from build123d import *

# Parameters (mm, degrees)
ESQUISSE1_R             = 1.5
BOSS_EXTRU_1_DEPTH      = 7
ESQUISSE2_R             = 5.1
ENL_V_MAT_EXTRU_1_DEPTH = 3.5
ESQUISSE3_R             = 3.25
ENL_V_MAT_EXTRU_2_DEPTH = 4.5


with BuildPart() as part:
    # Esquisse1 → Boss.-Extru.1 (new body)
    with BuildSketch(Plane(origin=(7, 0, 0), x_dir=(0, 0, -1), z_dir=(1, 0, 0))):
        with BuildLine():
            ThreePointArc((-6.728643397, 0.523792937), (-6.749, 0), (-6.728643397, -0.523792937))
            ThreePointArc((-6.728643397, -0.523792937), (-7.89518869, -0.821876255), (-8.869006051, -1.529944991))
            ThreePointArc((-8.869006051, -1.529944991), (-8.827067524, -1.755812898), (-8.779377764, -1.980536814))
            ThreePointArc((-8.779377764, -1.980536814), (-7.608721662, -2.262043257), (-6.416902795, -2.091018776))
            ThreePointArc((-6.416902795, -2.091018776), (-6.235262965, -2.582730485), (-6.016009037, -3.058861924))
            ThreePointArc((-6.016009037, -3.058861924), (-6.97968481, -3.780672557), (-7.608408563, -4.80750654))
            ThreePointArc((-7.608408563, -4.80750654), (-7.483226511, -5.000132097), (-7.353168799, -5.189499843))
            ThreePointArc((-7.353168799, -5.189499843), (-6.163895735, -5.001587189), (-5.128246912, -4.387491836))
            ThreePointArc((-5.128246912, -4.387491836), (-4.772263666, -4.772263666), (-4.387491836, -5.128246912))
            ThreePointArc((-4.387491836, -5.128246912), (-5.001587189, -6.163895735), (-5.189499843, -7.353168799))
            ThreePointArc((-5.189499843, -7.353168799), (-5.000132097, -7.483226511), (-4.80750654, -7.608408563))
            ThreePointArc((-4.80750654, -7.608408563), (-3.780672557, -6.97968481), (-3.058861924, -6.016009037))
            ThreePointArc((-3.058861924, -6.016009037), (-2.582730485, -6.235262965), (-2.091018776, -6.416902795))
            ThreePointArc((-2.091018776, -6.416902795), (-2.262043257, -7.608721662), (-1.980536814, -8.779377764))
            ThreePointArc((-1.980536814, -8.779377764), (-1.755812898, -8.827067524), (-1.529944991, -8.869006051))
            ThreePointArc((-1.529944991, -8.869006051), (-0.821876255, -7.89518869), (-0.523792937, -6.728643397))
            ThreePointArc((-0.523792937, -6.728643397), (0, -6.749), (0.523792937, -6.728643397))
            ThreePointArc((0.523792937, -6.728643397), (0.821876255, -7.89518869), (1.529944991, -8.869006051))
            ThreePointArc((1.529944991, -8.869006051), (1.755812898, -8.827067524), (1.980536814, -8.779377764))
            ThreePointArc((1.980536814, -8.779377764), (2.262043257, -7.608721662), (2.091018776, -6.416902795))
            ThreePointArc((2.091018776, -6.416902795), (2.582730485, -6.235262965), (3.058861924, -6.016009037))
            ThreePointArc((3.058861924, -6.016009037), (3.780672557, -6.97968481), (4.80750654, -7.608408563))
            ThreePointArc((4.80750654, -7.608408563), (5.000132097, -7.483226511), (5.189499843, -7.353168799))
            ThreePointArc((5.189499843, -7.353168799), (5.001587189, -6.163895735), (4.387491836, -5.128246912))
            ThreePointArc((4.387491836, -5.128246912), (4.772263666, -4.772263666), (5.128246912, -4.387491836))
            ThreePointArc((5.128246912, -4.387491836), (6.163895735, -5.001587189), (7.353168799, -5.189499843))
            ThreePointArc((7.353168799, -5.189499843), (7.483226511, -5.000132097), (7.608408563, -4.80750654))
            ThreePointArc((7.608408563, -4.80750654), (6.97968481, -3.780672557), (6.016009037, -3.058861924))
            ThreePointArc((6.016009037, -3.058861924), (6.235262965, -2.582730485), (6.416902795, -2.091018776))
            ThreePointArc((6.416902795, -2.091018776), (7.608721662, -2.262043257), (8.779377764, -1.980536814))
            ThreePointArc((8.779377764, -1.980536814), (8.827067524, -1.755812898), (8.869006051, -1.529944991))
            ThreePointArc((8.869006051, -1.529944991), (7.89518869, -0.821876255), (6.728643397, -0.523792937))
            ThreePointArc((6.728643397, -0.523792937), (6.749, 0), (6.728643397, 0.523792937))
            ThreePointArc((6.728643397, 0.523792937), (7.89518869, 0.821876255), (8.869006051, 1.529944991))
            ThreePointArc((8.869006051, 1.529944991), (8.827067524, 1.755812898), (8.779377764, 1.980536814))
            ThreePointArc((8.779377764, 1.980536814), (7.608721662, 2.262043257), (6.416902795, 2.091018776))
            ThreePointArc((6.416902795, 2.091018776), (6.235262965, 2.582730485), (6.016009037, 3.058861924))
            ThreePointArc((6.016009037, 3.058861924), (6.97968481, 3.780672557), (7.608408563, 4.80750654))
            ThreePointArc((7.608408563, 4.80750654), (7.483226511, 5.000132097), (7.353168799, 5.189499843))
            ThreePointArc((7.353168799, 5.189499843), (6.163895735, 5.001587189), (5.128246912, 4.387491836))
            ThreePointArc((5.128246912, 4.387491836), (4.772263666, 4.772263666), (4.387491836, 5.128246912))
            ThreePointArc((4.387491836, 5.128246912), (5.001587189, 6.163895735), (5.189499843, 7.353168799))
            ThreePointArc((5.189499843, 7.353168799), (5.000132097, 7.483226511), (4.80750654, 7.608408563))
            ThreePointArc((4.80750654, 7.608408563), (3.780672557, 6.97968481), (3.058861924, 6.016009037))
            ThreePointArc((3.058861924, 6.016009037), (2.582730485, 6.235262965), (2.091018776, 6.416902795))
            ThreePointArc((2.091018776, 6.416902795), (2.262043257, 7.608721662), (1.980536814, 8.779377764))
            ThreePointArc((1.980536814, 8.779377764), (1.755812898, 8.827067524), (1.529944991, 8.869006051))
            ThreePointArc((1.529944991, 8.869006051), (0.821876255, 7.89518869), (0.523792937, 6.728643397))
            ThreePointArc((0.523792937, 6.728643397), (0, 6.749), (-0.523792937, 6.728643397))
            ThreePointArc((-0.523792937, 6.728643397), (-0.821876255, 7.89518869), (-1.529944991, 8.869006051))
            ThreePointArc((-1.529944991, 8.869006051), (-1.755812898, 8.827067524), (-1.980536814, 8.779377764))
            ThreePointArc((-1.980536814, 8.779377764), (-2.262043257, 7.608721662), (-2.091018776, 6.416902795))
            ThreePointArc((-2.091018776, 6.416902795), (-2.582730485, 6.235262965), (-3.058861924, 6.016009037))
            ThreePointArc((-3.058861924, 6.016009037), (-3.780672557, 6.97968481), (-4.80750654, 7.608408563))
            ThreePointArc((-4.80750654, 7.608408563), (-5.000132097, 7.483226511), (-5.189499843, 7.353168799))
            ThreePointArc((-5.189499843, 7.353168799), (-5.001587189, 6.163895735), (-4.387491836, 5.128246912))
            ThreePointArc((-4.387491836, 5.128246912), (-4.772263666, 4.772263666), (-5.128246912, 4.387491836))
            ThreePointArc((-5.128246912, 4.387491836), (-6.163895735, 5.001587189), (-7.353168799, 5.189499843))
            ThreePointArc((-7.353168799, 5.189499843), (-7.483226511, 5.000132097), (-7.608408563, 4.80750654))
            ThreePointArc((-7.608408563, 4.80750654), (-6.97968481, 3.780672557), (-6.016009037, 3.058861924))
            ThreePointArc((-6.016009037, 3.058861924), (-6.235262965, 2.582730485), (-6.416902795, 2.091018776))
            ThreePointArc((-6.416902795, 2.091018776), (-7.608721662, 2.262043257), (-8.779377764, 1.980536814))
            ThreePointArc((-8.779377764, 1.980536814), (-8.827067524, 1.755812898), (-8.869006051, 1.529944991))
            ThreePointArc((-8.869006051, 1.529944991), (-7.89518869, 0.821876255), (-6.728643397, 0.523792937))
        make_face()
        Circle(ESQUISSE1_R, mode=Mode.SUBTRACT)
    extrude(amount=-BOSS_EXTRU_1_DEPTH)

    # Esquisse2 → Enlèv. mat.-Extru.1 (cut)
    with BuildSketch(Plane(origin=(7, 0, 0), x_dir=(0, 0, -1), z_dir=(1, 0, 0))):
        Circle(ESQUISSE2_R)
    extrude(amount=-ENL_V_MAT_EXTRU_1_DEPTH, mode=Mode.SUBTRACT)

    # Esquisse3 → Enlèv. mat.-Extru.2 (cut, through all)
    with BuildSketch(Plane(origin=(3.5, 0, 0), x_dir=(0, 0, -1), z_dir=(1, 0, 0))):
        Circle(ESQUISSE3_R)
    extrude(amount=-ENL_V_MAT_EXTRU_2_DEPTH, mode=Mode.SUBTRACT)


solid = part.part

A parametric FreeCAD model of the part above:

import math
import FreeCAD as App
import Part
import Sketcher
from FreeCAD import Vector
Q = App.Units.Quantity

doc = App.newDocument("Part")
body = doc.addObject("PartDesign::Body", "Body")

# Sketch on YZ plane
sketch1 = body.newObject("Sketcher::SketchObject", "Sketch")
sketch1.AttachmentSupport = (doc.getObject("YZ_Plane"), [""])
sketch1.MapMode = "FlatFace"
sketch1.AttachmentOffset = App.Placement(Vector(0, 0, 7), App.Rotation())
sketch1.addGeometry([
    Part.ArcOfCircle(Part.Circle(Vector(0, 0, 0), Vector(0, 0, 1), 6.75), math.radians(85.55), math.radians(94.45)),  # 0
    Part.ArcOfCircle(Part.Circle(Vector(-3.72, 6.53, 0), Vector(0, 0, 1), 3.2), math.radians(3), math.radians(47)),  # 1
    Part.ArcOfCircle(Part.Circle(Vector(0, 0, 0), Vector(0, 0, 1), 9), math.radians(99.79), math.radians(102.71)),  # 2
    Part.ArcOfCircle(Part.Circle(Vector(0.93, 7.46, 0), Vector(0, 0, 1), 3.2), math.radians(156), math.radians(199)),  # 3
    Part.ArcOfCircle(Part.Circle(Vector(0, 0, 0), Vector(0, 0, 1), 6.75), math.radians(108.05), math.radians(116.95)),  # 4
    Part.ArcOfCircle(Part.Circle(Vector(-5.94, 4.61, 0), Vector(0, 0, 1), 3.2), math.radians(26), math.radians(69)),  # 5
    Part.ArcOfCircle(Part.Circle(Vector(0, 0, 0), Vector(0, 0, 1), 9), math.radians(122.29), math.radians(125.21)),  # 6
    Part.ArcOfCircle(Part.Circle(Vector(-1.99, 7.25, 0), Vector(0, 0, 1), 3.2), math.radians(178), math.radians(222)),  # 7
    Part.ArcOfCircle(Part.Circle(Vector(0, 0, 0), Vector(0, 0, 1), 6.75), math.radians(130.55), math.radians(139.45)),  # 8
    Part.ArcOfCircle(Part.Circle(Vector(-7.25, 1.99, 0), Vector(0, 0, 1), 3.2), math.radians(48), math.radians(92)),  # 9
    Part.ArcOfCircle(Part.Circle(Vector(0, 0, 0), Vector(0, 0, 1), 9), math.radians(144.79), math.radians(147.71)),  # 10
    Part.ArcOfCircle(Part.Circle(Vector(-4.61, 5.94, 0), Vector(0, 0, 1), 3.2), math.radians(-159), math.radians(-116)),  # 11
    Part.ArcOfCircle(Part.Circle(Vector(0, 0, 0), Vector(0, 0, 1), 6.75), math.radians(153.05), math.radians(161.95)),  # 12
    Part.ArcOfCircle(Part.Circle(Vector(-7.46, -0.93, 0), Vector(0, 0, 1), 3.2), math.radians(71), math.radians(114)),  # 13
    Part.ArcOfCircle(Part.Circle(Vector(0, 0, 0), Vector(0, 0, 1), 9), math.radians(167.29), math.radians(170.21)),  # 14
    Part.ArcOfCircle(Part.Circle(Vector(-6.53, 3.72, 0), Vector(0, 0, 1), 3.2), math.radians(-137), math.radians(-93)),  # 15
    Part.ArcOfCircle(Part.Circle(Vector(0, 0, 0), Vector(0, 0, 1), 6.75), math.radians(175.55), math.radians(184.45)),  # 16
    Part.ArcOfCircle(Part.Circle(Vector(-6.53, -3.72, 0), Vector(0, 0, 1), 3.2), math.radians(93), math.radians(137)),  # 17
    Part.ArcOfCircle(Part.Circle(Vector(0, 0, 0), Vector(0, 0, 1), 9), math.radians(-170.21), math.radians(-167.29)),  # 18
    Part.ArcOfCircle(Part.Circle(Vector(-7.46, 0.93, 0), Vector(0, 0, 1), 3.2), math.radians(-114), math.radians(-71)),  # 19
    Part.ArcOfCircle(Part.Circle(Vector(0, 0, 0), Vector(0, 0, 1), 6.75), math.radians(-161.95), math.radians(-153.05)),  # 20
    Part.ArcOfCircle(Part.Circle(Vector(-4.61, -5.94, 0), Vector(0, 0, 1), 3.2), math.radians(116), math.radians(159)),  # 21
    Part.ArcOfCircle(Part.Circle(Vector(0, 0, 0), Vector(0, 0, 1), 9), math.radians(-147.71), math.radians(-144.79)),  # 22
    Part.ArcOfCircle(Part.Circle(Vector(-7.25, -1.99, 0), Vector(0, 0, 1), 3.2), math.radians(-92), math.radians(-48)),  # 23
    Part.ArcOfCircle(Part.Circle(Vector(0, 0, 0), Vector(0, 0, 1), 6.75), math.radians(-139.45), math.radians(-130.55)),  # 24
    Part.ArcOfCircle(Part.Circle(Vector(-1.99, -7.25, 0), Vector(0, 0, 1), 3.2), math.radians(138), math.radians(182)),  # 25
    Part.ArcOfCircle(Part.Circle(Vector(0, 0, 0), Vector(0, 0, 1), 9), math.radians(-125.21), math.radians(-122.29)),  # 26
    Part.ArcOfCircle(Part.Circle(Vector(-5.94, -4.61, 0), Vector(0, 0, 1), 3.2), math.radians(-69), math.radians(-26)),  # 27
    Part.ArcOfCircle(Part.Circle(Vector(0, 0, 0), Vector(0, 0, 1), 6.75), math.radians(-116.95), math.radians(-108.05)),  # 28
    Part.ArcOfCircle(Part.Circle(Vector(0.93, -7.46, 0), Vector(0, 0, 1), 3.2), math.radians(161), math.radians(204)),  # 29
    Part.ArcOfCircle(Part.Circle(Vector(0, 0, 0), Vector(0, 0, 1), 9), math.radians(-102.71), math.radians(-99.79)),  # 30
    Part.ArcOfCircle(Part.Circle(Vector(-3.72, -6.53, 0), Vector(0, 0, 1), 3.2), math.radians(-47), math.radians(-3)),  # 31
    Part.ArcOfCircle(Part.Circle(Vector(0, 0, 0), Vector(0, 0, 1), 6.75), math.radians(-94.45), math.radians(-85.55)),  # 32
    Part.ArcOfCircle(Part.Circle(Vector(3.72, -6.53, 0), Vector(0, 0, 1), 3.2), math.radians(-177), math.radians(-133)),  # 33
    Part.ArcOfCircle(Part.Circle(Vector(0, 0, 0), Vector(0, 0, 1), 9), math.radians(-80.21), math.radians(-77.29)),  # 34
    Part.ArcOfCircle(Part.Circle(Vector(-0.93, -7.46, 0), Vector(0, 0, 1), 3.2), math.radians(-24), math.radians(19)),  # 35
    Part.ArcOfCircle(Part.Circle(Vector(0, 0, 0), Vector(0, 0, 1), 6.75), math.radians(-71.95), math.radians(-63.05)),  # 36
    Part.ArcOfCircle(Part.Circle(Vector(5.94, -4.61, 0), Vector(0, 0, 1), 3.2), math.radians(-154), math.radians(-111)),  # 37
    Part.ArcOfCircle(Part.Circle(Vector(0, 0, 0), Vector(0, 0, 1), 9), math.radians(-57.71), math.radians(-54.79)),  # 38
    Part.ArcOfCircle(Part.Circle(Vector(1.99, -7.25, 0), Vector(0, 0, 1), 3.2), math.radians(-2), math.radians(42)),  # 39
    Part.ArcOfCircle(Part.Circle(Vector(0, 0, 0), Vector(0, 0, 1), 6.75), math.radians(-49.45), math.radians(-40.55)),  # 40
    Part.ArcOfCircle(Part.Circle(Vector(7.25, -1.99, 0), Vector(0, 0, 1), 3.2), math.radians(-132), math.radians(-88)),  # 41
    Part.ArcOfCircle(Part.Circle(Vector(0, 0, 0), Vector(0, 0, 1), 9), math.radians(-35.21), math.radians(-32.29)),  # 42
    Part.ArcOfCircle(Part.Circle(Vector(4.61, -5.94, 0), Vector(0, 0, 1), 3.2), math.radians(21), math.radians(64)),  # 43
    Part.ArcOfCircle(Part.Circle(Vector(0, 0, 0), Vector(0, 0, 1), 6.75), math.radians(-26.95), math.radians(-18.05)),  # 44
    Part.ArcOfCircle(Part.Circle(Vector(7.46, 0.93, 0), Vector(0, 0, 1), 3.2), math.radians(-109), math.radians(-66)),  # 45
    Part.ArcOfCircle(Part.Circle(Vector(0, 0, 0), Vector(0, 0, 1), 9), math.radians(-12.71), math.radians(-9.79)),  # 46
    Part.ArcOfCircle(Part.Circle(Vector(6.53, -3.72, 0), Vector(0, 0, 1), 3.2), math.radians(43), math.radians(87)),  # 47
    Part.ArcOfCircle(Part.Circle(Vector(0, 0, 0), Vector(0, 0, 1), 6.75), math.radians(-4.45), math.radians(4.45)),  # 48
    Part.ArcOfCircle(Part.Circle(Vector(6.53, 3.72, 0), Vector(0, 0, 1), 3.2), math.radians(-87), math.radians(-43)),  # 49
    Part.ArcOfCircle(Part.Circle(Vector(0, 0, 0), Vector(0, 0, 1), 9), math.radians(9.79), math.radians(12.71)),  # 50
    Part.ArcOfCircle(Part.Circle(Vector(7.46, -0.93, 0), Vector(0, 0, 1), 3.2), math.radians(66), math.radians(109)),  # 51
    Part.ArcOfCircle(Part.Circle(Vector(0, 0, 0), Vector(0, 0, 1), 6.75), math.radians(18.05), math.radians(26.95)),  # 52
    Part.ArcOfCircle(Part.Circle(Vector(4.61, 5.94, 0), Vector(0, 0, 1), 3.2), math.radians(-64), math.radians(-21)),  # 53
    Part.ArcOfCircle(Part.Circle(Vector(0, 0, 0), Vector(0, 0, 1), 9), math.radians(32.29), math.radians(35.21)),  # 54
    Part.ArcOfCircle(Part.Circle(Vector(7.25, 1.99, 0), Vector(0, 0, 1), 3.2), math.radians(88), math.radians(132)),  # 55
    Part.ArcOfCircle(Part.Circle(Vector(0, 0, 0), Vector(0, 0, 1), 6.75), math.radians(40.55), math.radians(49.45)),  # 56
    Part.ArcOfCircle(Part.Circle(Vector(1.99, 7.25, 0), Vector(0, 0, 1), 3.2), math.radians(-42), math.radians(2)),  # 57
    Part.ArcOfCircle(Part.Circle(Vector(0, 0, 0), Vector(0, 0, 1), 9), math.radians(54.79), math.radians(57.71)),  # 58
    Part.ArcOfCircle(Part.Circle(Vector(5.94, 4.61, 0), Vector(0, 0, 1), 3.2), math.radians(111), math.radians(154)),  # 59
    Part.ArcOfCircle(Part.Circle(Vector(0, 0, 0), Vector(0, 0, 1), 6.75), math.radians(63.05), math.radians(71.95)),  # 60
    Part.ArcOfCircle(Part.Circle(Vector(-0.93, 7.46, 0), Vector(0, 0, 1), 3.2), math.radians(-19), math.radians(24)),  # 61
    Part.ArcOfCircle(Part.Circle(Vector(0, 0, 0), Vector(0, 0, 1), 9), math.radians(77.29), math.radians(80.21)),  # 62
    Part.ArcOfCircle(Part.Circle(Vector(3.72, 6.53, 0), Vector(0, 0, 1), 3.2), math.radians(133), math.radians(177)),  # 63
    Part.Circle(Vector(0, 0, 0), Vector(0, 0, 1), 1.5),  # 64
], False)
sketch1.addConstraint([
    Sketcher.Constraint("Coincident", 0, 2, 1, 1),
    Sketcher.Constraint("Coincident", 1, 2, 2, 1),
    Sketcher.Constraint("Coincident", 2, 2, 3, 1),
    Sketcher.Constraint("Coincident", 3, 2, 4, 1),
    Sketcher.Constraint("Coincident", 4, 2, 5, 1),
    Sketcher.Constraint("Coincident", 5, 2, 6, 1),
    Sketcher.Constraint("Coincident", 6, 2, 7, 1),
    Sketcher.Constraint("Coincident", 7, 2, 8, 1),
    Sketcher.Constraint("Coincident", 8, 2, 9, 1),
    Sketcher.Constraint("Coincident", 9, 2, 10, 1),
    Sketcher.Constraint("Coincident", 10, 2, 11, 1),
    Sketcher.Constraint("Coincident", 11, 2, 12, 1),
    Sketcher.Constraint("Coincident", 12, 2, 13, 1),
    Sketcher.Constraint("Coincident", 13, 2, 14, 1),
    Sketcher.Constraint("Coincident", 14, 2, 15, 1),
    Sketcher.Constraint("Coincident", 15, 2, 16, 1),
    Sketcher.Constraint("Coincident", 16, 2, 17, 1),
    Sketcher.Constraint("Coincident", 17, 2, 18, 1),
    Sketcher.Constraint("Coincident", 18, 2, 19, 1),
    Sketcher.Constraint("Coincident", 19, 2, 20, 1),
    Sketcher.Constraint("Coincident", 20, 2, 21, 1),
    Sketcher.Constraint("Coincident", 21, 2, 22, 1),
    Sketcher.Constraint("Coincident", 22, 2, 23, 1),
    Sketcher.Constraint("Coincident", 23, 2, 24, 1),
    Sketcher.Constraint("Coincident", 24, 2, 25, 1),
    Sketcher.Constraint("Coincident", 25, 2, 26, 1),
    Sketcher.Constraint("Coincident", 26, 2, 27, 1),
    Sketcher.Constraint("Coincident", 27, 2, 28, 1),
    Sketcher.Constraint("Coincident", 28, 2, 29, 1),
    Sketcher.Constraint("Coincident", 29, 2, 30, 1),
    Sketcher.Constraint("Coincident", 30, 2, 31, 1),
    Sketcher.Constraint("Coincident", 31, 2, 32, 1),
    Sketcher.Constraint("Coincident", 32, 2, 33, 1),
    Sketcher.Constraint("Coincident", 33, 2, 34, 1),
    Sketcher.Constraint("Coincident", 34, 2, 35, 1),
    Sketcher.Constraint("Coincident", 35, 2, 36, 1),
    Sketcher.Constraint("Coincident", 36, 2, 37, 1),
    Sketcher.Constraint("Coincident", 37, 2, 38, 1),
    Sketcher.Constraint("Coincident", 38, 2, 39, 1),
    Sketcher.Constraint("Coincident", 39, 2, 40, 1),
    Sketcher.Constraint("Coincident", 40, 2, 41, 1),
    Sketcher.Constraint("Coincident", 41, 2, 42, 1),
    Sketcher.Constraint("Coincident", 42, 2, 43, 1),
    Sketcher.Constraint("Coincident", 43, 2, 44, 1),
    Sketcher.Constraint("Coincident", 44, 2, 45, 1),
    Sketcher.Constraint("Coincident", 45, 2, 46, 1),
    Sketcher.Constraint("Coincident", 46, 2, 47, 1),
    Sketcher.Constraint("Coincident", 47, 2, 48, 1),
    Sketcher.Constraint("Coincident", 48, 2, 49, 1),
    Sketcher.Constraint("Coincident", 49, 2, 50, 1),
    Sketcher.Constraint("Coincident", 50, 2, 51, 1),
    Sketcher.Constraint("Coincident", 51, 2, 52, 1),
    Sketcher.Constraint("Coincident", 52, 2, 53, 1),
    Sketcher.Constraint("Coincident", 53, 2, 54, 1),
    Sketcher.Constraint("Coincident", 54, 2, 55, 1),
    Sketcher.Constraint("Coincident", 55, 2, 56, 1),
    Sketcher.Constraint("Coincident", 56, 2, 57, 1),
    Sketcher.Constraint("Coincident", 57, 2, 58, 1),
    Sketcher.Constraint("Coincident", 58, 2, 59, 1),
    Sketcher.Constraint("Coincident", 59, 2, 60, 1),
    Sketcher.Constraint("Coincident", 60, 2, 61, 1),
    Sketcher.Constraint("Coincident", 61, 2, 62, 1),
    Sketcher.Constraint("Coincident", 62, 2, 63, 1),
    Sketcher.Constraint("Coincident", 63, 2, 0, 1),
    Sketcher.Constraint("Coincident", 0, 3, -1, 1),
    Sketcher.Constraint("Coincident", 2, 3, -1, 1),
    Sketcher.Constraint("Coincident", 4, 3, -1, 1),
    Sketcher.Constraint("Coincident", 6, 3, -1, 1),
    Sketcher.Constraint("Coincident", 8, 3, -1, 1),
    Sketcher.Constraint("Coincident", 10, 3, -1, 1),
    Sketcher.Constraint("Coincident", 12, 3, -1, 1),
    Sketcher.Constraint("Coincident", 14, 3, -1, 1),
    Sketcher.Constraint("Coincident", 16, 3, -1, 1),
    Sketcher.Constraint("Coincident", 18, 3, -1, 1),
    Sketcher.Constraint("Coincident", 20, 3, -1, 1),
    Sketcher.Constraint("Coincident", 22, 3, -1, 1),
    Sketcher.Constraint("Coincident", 24, 3, -1, 1),
    Sketcher.Constraint("Coincident", 26, 3, -1, 1),
    Sketcher.Constraint("Coincident", 28, 3, -1, 1),
    Sketcher.Constraint("Coincident", 30, 3, -1, 1),
    Sketcher.Constraint("Coincident", 32, 3, -1, 1),
    Sketcher.Constraint("Coincident", 34, 3, -1, 1),
    Sketcher.Constraint("Coincident", 36, 3, -1, 1),
    Sketcher.Constraint("Coincident", 38, 3, -1, 1),
    Sketcher.Constraint("Coincident", 40, 3, -1, 1),
    Sketcher.Constraint("Coincident", 42, 3, -1, 1),
    Sketcher.Constraint("Coincident", 44, 3, -1, 1),
    Sketcher.Constraint("Coincident", 46, 3, -1, 1),
    Sketcher.Constraint("Coincident", 48, 3, -1, 1),
    Sketcher.Constraint("Coincident", 50, 3, -1, 1),
    Sketcher.Constraint("Coincident", 52, 3, -1, 1),
    Sketcher.Constraint("Coincident", 54, 3, -1, 1),
    Sketcher.Constraint("Coincident", 56, 3, -1, 1),
    Sketcher.Constraint("Coincident", 58, 3, -1, 1),
    Sketcher.Constraint("Coincident", 60, 3, -1, 1),
    Sketcher.Constraint("Coincident", 62, 3, -1, 1),
    Sketcher.Constraint("Coincident", 64, 3, -1, 1),
    Sketcher.Constraint("Equal", 1, 3),
    Sketcher.Constraint("Equal", 0, 4),
    Sketcher.Constraint("Equal", 3, 5),
    Sketcher.Constraint("Equal", 2, 6),
    Sketcher.Constraint("Equal", 5, 7),
    Sketcher.Constraint("Equal", 4, 8),
    Sketcher.Constraint("Equal", 7, 9),
    Sketcher.Constraint("Equal", 6, 10),
    Sketcher.Constraint("Equal", 9, 11),
    Sketcher.Constraint("Equal", 8, 12),
    Sketcher.Constraint("Equal", 11, 13),
    Sketcher.Constraint("Equal", 10, 14),
    Sketcher.Constraint("Equal", 13, 15),
    Sketcher.Constraint("Equal", 12, 16),
    Sketcher.Constraint("Equal", 15, 17),
    Sketcher.Constraint("Equal", 14, 18),
    Sketcher.Constraint("Equal", 17, 19),
    Sketcher.Constraint("Equal", 16, 20),
    Sketcher.Constraint("Equal", 19, 21),
    Sketcher.Constraint("Equal", 18, 22),
    Sketcher.Constraint("Equal", 21, 23),
    Sketcher.Constraint("Equal", 20, 24),
    Sketcher.Constraint("Equal", 23, 25),
    Sketcher.Constraint("Equal", 22, 26),
    Sketcher.Constraint("Equal", 25, 27),
    Sketcher.Constraint("Equal", 24, 28),
    Sketcher.Constraint("Equal", 27, 29),
    Sketcher.Constraint("Equal", 26, 30),
    Sketcher.Constraint("Equal", 29, 31),
    Sketcher.Constraint("Equal", 28, 32),
    Sketcher.Constraint("Equal", 31, 33),
    Sketcher.Constraint("Equal", 30, 34),
    Sketcher.Constraint("Equal", 33, 35),
    Sketcher.Constraint("Equal", 32, 36),
    Sketcher.Constraint("Equal", 35, 37),
    Sketcher.Constraint("Equal", 34, 38),
    Sketcher.Constraint("Equal", 37, 39),
    Sketcher.Constraint("Equal", 36, 40),
    Sketcher.Constraint("Equal", 39, 41),
    Sketcher.Constraint("Equal", 38, 42),
    Sketcher.Constraint("Equal", 41, 43),
    Sketcher.Constraint("Equal", 40, 44),
    Sketcher.Constraint("Equal", 43, 45),
    Sketcher.Constraint("Equal", 42, 46),
    Sketcher.Constraint("Equal", 45, 47),
    Sketcher.Constraint("Equal", 44, 48),
    Sketcher.Constraint("Equal", 47, 49),
    Sketcher.Constraint("Equal", 46, 50),
    Sketcher.Constraint("Equal", 49, 51),
    Sketcher.Constraint("Equal", 48, 52),
    Sketcher.Constraint("Equal", 51, 53),
    Sketcher.Constraint("Equal", 50, 54),
    Sketcher.Constraint("Equal", 53, 55),
    Sketcher.Constraint("Equal", 52, 56),
    Sketcher.Constraint("Equal", 55, 57),
    Sketcher.Constraint("Equal", 54, 58),
    Sketcher.Constraint("Equal", 57, 59),
    Sketcher.Constraint("Equal", 56, 60),
    Sketcher.Constraint("Equal", 59, 61),
    Sketcher.Constraint("Equal", 58, 62),
    Sketcher.Constraint("Equal", 61, 63),
    Sketcher.Constraint("Symmetric", 1, 3, 33, 3, -1, 1),
    Sketcher.Constraint("Symmetric", 3, 3, 35, 3, -1, 1),
    Sketcher.Constraint("Symmetric", 5, 3, 37, 3, -1, 1),
    Sketcher.Constraint("Symmetric", 7, 3, 39, 3, -1, 1),
    Sketcher.Constraint("Symmetric", 9, 3, 41, 3, -1, 1),
    Sketcher.Constraint("Symmetric", 11, 3, 43, 3, -1, 1),
    Sketcher.Constraint("Symmetric", 13, 3, 45, 3, -1, 1),
    Sketcher.Constraint("Symmetric", 15, 3, 47, 3, -1, 1),
    Sketcher.Constraint("Symmetric", 17, 3, 49, 3, -1, 1),
    Sketcher.Constraint("Symmetric", 19, 3, 51, 3, -1, 1),
    Sketcher.Constraint("Symmetric", 21, 3, 53, 3, -1, 1),
    Sketcher.Constraint("Symmetric", 23, 3, 55, 3, -1, 1),
    Sketcher.Constraint("Symmetric", 25, 3, 57, 3, -1, 1),
    Sketcher.Constraint("Symmetric", 27, 3, 59, 3, -1, 1),
    Sketcher.Constraint("Symmetric", 29, 3, 61, 3, -1, 1),
    Sketcher.Constraint("Symmetric", 31, 3, 63, 3, -1, 1),
    Sketcher.Constraint("Symmetric", 31, 3, 33, 3, -2),
    Sketcher.Constraint("Symmetric", 29, 3, 35, 3, -2),
    Sketcher.Constraint("Symmetric", 27, 3, 37, 3, -2),
    Sketcher.Constraint("Symmetric", 25, 3, 39, 3, -2),
    Sketcher.Constraint("Symmetric", 23, 3, 41, 3, -2),
    Sketcher.Constraint("Symmetric", 21, 3, 43, 3, -2),
    Sketcher.Constraint("Symmetric", 19, 3, 45, 3, -2),
    Sketcher.Constraint("Symmetric", 17, 3, 47, 3, -2),
    Sketcher.Constraint("Diameter", 64, Q("3 mm")),
    Sketcher.Constraint("Radius", 2, Q("8.999999 mm")),
    Sketcher.Constraint("Radius", 1, Q("3.2 mm")),
    Sketcher.Constraint("Radius", 0, Q("6.749 mm")),
    Sketcher.Constraint("DistanceX", 6, 2, -1, 1, Q("5.1895 mm")),
    Sketcher.Constraint("DistanceY", -1, 1, 9, 2, Q("5.1895 mm")),
    Sketcher.Constraint("DistanceY", -1, 1, 1, 3, Q("6.533832 mm")),
    Sketcher.Constraint("DistanceX", 5, 3, -1, 1, Q("5.935242 mm")),
    Sketcher.Constraint("DistanceY", -1, 1, 5, 3, Q("4.613711 mm")),
    Sketcher.Constraint("DistanceY", -1, 1, 7, 3, Q("7.249039 mm")),
    Sketcher.Constraint("DistanceX", 9, 3, -1, 1, Q("7.249039 mm")),
    Sketcher.Constraint("DistanceX", 11, 3, -1, 1, Q("4.613711 mm")),
    Sketcher.Constraint("DistanceY", -1, 1, 11, 3, Q("5.935242 mm")),
    Sketcher.Constraint("DistanceX", 15, 3, -1, 1, Q("6.533832 mm")),
    Sketcher.Constraint("DistanceX", 3, 2, -1, 1, Q("2.091019 mm")),
    Sketcher.Constraint("DistanceY", -1, 1, 12, 2, Q("2.091019 mm")),
    Sketcher.Constraint("DistanceX", 1, 3, -1, 1, Q("3.717858 mm")),
    Sketcher.Constraint("DistanceX", -1, 1, 3, 3, Q("0.934463 mm")),
    Sketcher.Constraint("DistanceX", 13, 3, -1, 1, Q("7.459236 mm")),
    Sketcher.Constraint("DistanceY", -1, 1, 15, 3, Q("3.717858 mm")),
])
pad1 = body.newObject("PartDesign::Pad", "Pad")
pad1.Profile = sketch1
pad1.Length = 7
pad1.Reversed = True

# Sketch on YZ plane
sketch2 = body.newObject("Sketcher::SketchObject", "Sketch001")
sketch2.AttachmentSupport = (doc.getObject("YZ_Plane"), [""])
sketch2.MapMode = "FlatFace"
sketch2.AttachmentOffset = App.Placement(Vector(0, 0, 7), App.Rotation())
sketch2.addGeometry(Part.Circle(Vector(0, 0, 0), Vector(0, 0, 1), 5), False)
sketch2.addConstraint([
    Sketcher.Constraint("Coincident", 0, 3, -1, 1),
    Sketcher.Constraint("Diameter", 0, Q("10.2 mm")),
])
pocket1 = body.newObject("PartDesign::Pocket", "Pocket")
pocket1.Profile = sketch2
pocket1.Length = 3.5

# Sketch on YZ plane
sketch3 = body.newObject("Sketcher::SketchObject", "Sketch002")
sketch3.AttachmentSupport = (doc.getObject("YZ_Plane"), [""])
sketch3.MapMode = "FlatFace"
sketch3.AttachmentOffset = App.Placement(Vector(0, 0, 3.5), App.Rotation())
sketch3.addGeometry(Part.Circle(Vector(0, 0, 0), Vector(0, 0, 1), 3.2), False)
sketch3.addConstraint([
    Sketcher.Constraint("Coincident", 0, 3, -1, 1),
    Sketcher.Constraint("Diameter", 0, Q("6.5 mm")),
])
pocket2 = body.newObject("PartDesign::Pocket", "Pocket001")
pocket2.Profile = sketch3
pocket2.Type = "ThroughAll"

doc.recompute()
